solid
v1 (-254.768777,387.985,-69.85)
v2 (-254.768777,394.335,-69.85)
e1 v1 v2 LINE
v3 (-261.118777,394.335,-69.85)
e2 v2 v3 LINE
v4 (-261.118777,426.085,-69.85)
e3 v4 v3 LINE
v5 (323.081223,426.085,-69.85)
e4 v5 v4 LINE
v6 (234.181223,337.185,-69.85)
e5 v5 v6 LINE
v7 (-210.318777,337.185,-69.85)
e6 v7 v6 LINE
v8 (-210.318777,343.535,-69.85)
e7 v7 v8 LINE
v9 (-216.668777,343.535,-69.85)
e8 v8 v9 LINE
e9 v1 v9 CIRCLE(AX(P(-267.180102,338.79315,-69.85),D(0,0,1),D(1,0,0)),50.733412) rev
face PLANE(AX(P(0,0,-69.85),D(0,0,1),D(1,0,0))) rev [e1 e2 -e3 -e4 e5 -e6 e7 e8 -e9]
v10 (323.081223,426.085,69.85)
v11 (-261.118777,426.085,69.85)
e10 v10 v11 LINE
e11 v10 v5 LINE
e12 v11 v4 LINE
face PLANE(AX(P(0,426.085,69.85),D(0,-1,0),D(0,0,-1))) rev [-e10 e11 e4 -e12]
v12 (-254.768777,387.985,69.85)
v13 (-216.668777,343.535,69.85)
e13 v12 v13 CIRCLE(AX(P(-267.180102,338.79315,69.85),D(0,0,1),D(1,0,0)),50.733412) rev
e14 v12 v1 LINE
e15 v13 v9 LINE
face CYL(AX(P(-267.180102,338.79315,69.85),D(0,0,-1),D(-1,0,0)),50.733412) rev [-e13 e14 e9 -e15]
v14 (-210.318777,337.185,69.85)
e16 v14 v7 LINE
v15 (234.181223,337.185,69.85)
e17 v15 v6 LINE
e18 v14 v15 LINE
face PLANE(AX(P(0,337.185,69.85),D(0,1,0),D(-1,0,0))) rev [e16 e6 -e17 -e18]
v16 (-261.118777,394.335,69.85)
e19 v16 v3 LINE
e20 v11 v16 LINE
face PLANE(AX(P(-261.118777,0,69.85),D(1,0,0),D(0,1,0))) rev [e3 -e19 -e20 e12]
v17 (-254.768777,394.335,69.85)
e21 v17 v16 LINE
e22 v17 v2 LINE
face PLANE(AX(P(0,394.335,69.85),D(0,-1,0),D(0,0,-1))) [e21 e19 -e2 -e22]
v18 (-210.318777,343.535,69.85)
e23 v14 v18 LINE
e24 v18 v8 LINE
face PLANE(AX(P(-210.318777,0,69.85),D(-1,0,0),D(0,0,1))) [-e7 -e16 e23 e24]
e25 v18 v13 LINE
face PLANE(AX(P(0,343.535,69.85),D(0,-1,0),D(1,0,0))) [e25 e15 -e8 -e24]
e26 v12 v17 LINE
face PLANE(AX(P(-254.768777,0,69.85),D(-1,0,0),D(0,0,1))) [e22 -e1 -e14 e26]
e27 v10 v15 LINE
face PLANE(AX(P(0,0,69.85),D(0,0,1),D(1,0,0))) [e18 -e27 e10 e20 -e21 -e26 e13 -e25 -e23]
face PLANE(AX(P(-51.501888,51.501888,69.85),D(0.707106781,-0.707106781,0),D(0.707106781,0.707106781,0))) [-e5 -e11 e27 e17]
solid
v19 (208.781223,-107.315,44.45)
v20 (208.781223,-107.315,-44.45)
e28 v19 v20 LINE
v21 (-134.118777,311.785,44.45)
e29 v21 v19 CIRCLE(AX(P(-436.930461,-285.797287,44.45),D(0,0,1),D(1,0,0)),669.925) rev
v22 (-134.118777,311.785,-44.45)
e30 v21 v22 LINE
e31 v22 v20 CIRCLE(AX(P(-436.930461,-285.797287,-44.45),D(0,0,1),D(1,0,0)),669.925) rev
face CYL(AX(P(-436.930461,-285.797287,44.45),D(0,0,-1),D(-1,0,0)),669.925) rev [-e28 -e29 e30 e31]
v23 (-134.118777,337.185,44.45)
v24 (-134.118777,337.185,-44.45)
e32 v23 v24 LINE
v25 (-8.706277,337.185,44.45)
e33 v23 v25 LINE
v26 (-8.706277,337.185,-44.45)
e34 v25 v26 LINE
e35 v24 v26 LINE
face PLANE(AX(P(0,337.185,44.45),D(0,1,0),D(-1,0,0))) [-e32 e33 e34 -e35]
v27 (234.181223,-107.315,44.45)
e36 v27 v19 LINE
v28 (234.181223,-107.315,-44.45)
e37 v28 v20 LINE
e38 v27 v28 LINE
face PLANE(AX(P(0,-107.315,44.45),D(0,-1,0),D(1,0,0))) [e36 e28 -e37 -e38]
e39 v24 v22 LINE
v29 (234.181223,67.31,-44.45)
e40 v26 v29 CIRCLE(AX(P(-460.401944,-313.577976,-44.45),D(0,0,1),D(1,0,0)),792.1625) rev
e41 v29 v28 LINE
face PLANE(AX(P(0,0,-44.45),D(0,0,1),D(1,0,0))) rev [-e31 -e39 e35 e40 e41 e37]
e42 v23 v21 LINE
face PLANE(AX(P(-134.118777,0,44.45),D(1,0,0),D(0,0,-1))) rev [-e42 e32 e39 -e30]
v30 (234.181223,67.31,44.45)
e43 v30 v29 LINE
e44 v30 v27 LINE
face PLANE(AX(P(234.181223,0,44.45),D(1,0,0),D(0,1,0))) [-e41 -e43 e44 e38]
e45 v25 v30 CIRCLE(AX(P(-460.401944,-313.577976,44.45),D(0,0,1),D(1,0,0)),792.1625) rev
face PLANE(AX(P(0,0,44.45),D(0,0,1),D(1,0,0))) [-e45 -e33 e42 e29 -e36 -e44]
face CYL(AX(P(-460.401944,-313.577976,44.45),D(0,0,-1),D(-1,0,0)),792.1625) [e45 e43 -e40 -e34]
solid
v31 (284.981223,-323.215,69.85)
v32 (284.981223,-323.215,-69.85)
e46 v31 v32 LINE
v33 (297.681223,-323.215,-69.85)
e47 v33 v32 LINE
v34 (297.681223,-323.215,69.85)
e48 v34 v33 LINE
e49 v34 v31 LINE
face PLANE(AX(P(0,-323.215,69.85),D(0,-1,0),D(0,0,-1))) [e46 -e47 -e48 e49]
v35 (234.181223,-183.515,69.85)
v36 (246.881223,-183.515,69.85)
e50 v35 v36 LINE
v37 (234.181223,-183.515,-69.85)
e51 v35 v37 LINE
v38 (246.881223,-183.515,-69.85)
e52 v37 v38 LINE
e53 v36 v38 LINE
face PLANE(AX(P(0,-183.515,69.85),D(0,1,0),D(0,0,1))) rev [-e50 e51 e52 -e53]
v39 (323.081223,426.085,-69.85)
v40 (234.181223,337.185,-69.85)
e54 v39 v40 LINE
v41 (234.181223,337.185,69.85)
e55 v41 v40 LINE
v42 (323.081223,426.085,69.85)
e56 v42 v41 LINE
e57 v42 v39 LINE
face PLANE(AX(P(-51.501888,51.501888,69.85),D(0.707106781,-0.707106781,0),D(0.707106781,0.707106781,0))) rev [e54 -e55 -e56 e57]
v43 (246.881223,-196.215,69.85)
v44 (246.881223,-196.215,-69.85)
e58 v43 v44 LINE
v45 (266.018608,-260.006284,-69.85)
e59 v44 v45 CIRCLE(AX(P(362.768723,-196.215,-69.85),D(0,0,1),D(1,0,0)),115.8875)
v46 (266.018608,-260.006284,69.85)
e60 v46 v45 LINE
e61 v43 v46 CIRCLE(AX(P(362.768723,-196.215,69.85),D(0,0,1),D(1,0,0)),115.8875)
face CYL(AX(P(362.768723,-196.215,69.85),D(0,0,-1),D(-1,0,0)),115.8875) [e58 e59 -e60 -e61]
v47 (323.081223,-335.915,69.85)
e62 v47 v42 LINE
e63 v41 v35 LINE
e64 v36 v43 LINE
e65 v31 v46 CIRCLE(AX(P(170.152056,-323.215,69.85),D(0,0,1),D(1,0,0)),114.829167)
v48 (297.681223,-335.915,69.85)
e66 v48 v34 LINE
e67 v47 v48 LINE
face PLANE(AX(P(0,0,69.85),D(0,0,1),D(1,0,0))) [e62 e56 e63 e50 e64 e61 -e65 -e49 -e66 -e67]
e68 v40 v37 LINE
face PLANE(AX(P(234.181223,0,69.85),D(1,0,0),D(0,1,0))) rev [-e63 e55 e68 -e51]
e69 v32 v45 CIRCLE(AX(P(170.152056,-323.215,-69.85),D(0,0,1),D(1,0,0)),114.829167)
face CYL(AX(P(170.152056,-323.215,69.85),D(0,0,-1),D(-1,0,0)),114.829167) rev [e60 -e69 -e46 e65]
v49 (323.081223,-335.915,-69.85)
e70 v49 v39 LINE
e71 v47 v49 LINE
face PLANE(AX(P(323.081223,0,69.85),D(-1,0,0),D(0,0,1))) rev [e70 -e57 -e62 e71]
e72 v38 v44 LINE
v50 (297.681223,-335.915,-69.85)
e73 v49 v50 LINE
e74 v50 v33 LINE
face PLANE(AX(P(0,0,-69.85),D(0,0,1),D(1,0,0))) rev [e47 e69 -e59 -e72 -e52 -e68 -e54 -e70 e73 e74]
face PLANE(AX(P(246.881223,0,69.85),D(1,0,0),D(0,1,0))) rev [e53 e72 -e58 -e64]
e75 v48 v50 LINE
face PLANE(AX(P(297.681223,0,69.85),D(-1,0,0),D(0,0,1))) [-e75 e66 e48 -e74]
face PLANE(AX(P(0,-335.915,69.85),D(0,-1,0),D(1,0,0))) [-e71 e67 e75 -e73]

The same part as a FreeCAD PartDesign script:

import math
import FreeCAD as App
import Part
import Sketcher
Q = App.Units.Quantity

doc = App.newDocument("Part")
body = doc.addObject("PartDesign::Body", "Body")

sketch1 = body.newObject("Sketcher::SketchObject", "Sketch")
sketch1.AttachmentSupport = (doc.getObject("XY_Plane"), [""])
sketch1.MapMode = "FlatFace"
sketch1.addGeometry([
    Part.LineSegment(App.Vector(-255, 394, 0), App.Vector(-255, 388, 0)),
    Part.ArcOfCircle(Part.Circle(App.Vector(-267, 339, 0), App.Vector(0, 0, 1), 51), math.radians(5), math.radians(76)),
    Part.LineSegment(App.Vector(-217, 344, 0), App.Vector(-210, 344, 0)),
    Part.LineSegment(App.Vector(-210, 344, 0), App.Vector(-210, 337, 0)),
    Part.LineSegment(App.Vector(-210, 337, 0), App.Vector(234, 337, 0)),
    Part.LineSegment(App.Vector(234, 337, 0), App.Vector(323, 426, 0)),
    Part.LineSegment(App.Vector(323, 426, 0), App.Vector(-261, 426, 0)),
    Part.LineSegment(App.Vector(-261, 426, 0), App.Vector(-261, 394, 0)),
    Part.LineSegment(App.Vector(-261, 394, 0), App.Vector(-255, 394, 0)),
], False)
sketch1.addConstraint([
    Sketcher.Constraint("Coincident", 0, 2, 1, 2),
    Sketcher.Constraint("Coincident", 1, 1, 2, 1),
    Sketcher.Constraint("Coincident", 2, 2, 3, 1),
    Sketcher.Constraint("Coincident", 3, 2, 4, 1),
    Sketcher.Constraint("Coincident", 4, 2, 5, 1),
    Sketcher.Constraint("Coincident", 5, 2, 6, 1),
    Sketcher.Constraint("Coincident", 6, 2, 7, 1),
    Sketcher.Constraint("Coincident", 7, 2, 8, 1),
    Sketcher.Constraint("Coincident", 8, 2, 0, 1),
    Sketcher.Constraint("Vertical", 0),
    Sketcher.Constraint("Horizontal", 2),
    Sketcher.Constraint("Vertical", 3),
    Sketcher.Constraint("Horizontal", 4),
    Sketcher.Constraint("Horizontal", 6),
    Sketcher.Constraint("Vertical", 7),
    Sketcher.Constraint("Horizontal", 8),
    Sketcher.Constraint("Equal", 2, 8),
    Sketcher.Constraint("Equal", 8, 0),
    Sketcher.Constraint("Equal", 0, 3),
    Sketcher.Constraint("DistanceX", 6, 2, 6, 1, Q("23 in")),
    Sketcher.Constraint("DistanceX", 4, 1, 4, 2, Q("17.5 in")),
    Sketcher.Constraint("Angle", 5, Q("45 deg")),
    Sketcher.Constraint("DistanceY", 3, 2, 0, 2, Q("2 in")),
    Sketcher.Constraint("DistanceX", 2, 2, 5, 2, Q("21 in")),
    Sketcher.Constraint("DistanceX", 2, 1, 2, 2, Q("0.25 in")),
    Sketcher.Constraint("DistanceY", -1, 1, 0, 2, Q("15.275 in")),
    Sketcher.Constraint("Radius", 1, 50.733412),
    Sketcher.Constraint("DistanceX", 1, 3, -1, 1, 267.180102),
])
pad1 = body.newObject("PartDesign::Pad", "Pad")
pad1.Profile = sketch1
pad1.Length = Q("5.5 in")
pad1.Midplane = True
body2 = doc.addObject("PartDesign::Body", "Body001")

sketch2 = body2.newObject("Sketcher::SketchObject", "Sketch001")
sketch2.AttachmentSupport = (doc.getObject("XY_Plane001"), [""])
sketch2.MapMode = "FlatFace"
sketch2.addGeometry([
    Part.ArcOfCircle(Part.Circle(App.Vector(-460, -314, 0), App.Vector(0, 0, 1), 792), math.radians(29), math.radians(55)),
    Part.LineSegment(App.Vector(-9, 337, 0), App.Vector(-134, 337, 0)),
    Part.LineSegment(App.Vector(-134, 337, 0), App.Vector(-134, 312, 0)),
    Part.ArcOfCircle(Part.Circle(App.Vector(-437, -286, 0), App.Vector(0, 0, 1), 670), math.radians(15), math.radians(63)),
    Part.LineSegment(App.Vector(209, -107, 0), App.Vector(234, -107, 0)),
    Part.LineSegment(App.Vector(234, -107, 0), App.Vector(234, 67, 0)),
], False)
sketch2.addConstraint([
    Sketcher.Constraint("Coincident", 0, 2, 1, 1),
    Sketcher.Constraint("Coincident", 1, 2, 2, 1),
    Sketcher.Constraint("Coincident", 2, 2, 3, 2),
    Sketcher.Constraint("Coincident", 3, 1, 4, 1),
    Sketcher.Constraint("Coincident", 4, 2, 5, 1),
    Sketcher.Constraint("Coincident", 5, 2, 0, 1),
    Sketcher.Constraint("Horizontal", 1),
    Sketcher.Constraint("Vertical", 2),
    Sketcher.Constraint("Horizontal", 4),
    Sketcher.Constraint("Vertical", 5),
    Sketcher.Constraint("Equal", 4, 2),
    Sketcher.Constraint("DistanceX", 4, 1, 4, 2, Q("1 in")),
    Sketcher.Constraint("Radius", 0, Q("31.1875 in")),
    Sketcher.Constraint("Radius", 3, Q("26.375 in")),
    Sketcher.Constraint("DistanceX", 2, 2, 3, 1, Q("13.5 in")),
    Sketcher.Constraint("DistanceY", 4, 2, 2, 2, Q("16.5 in")),
    Sketcher.Constraint("DistanceX", 1, 2, 1, 1, Q("4.9375 in")),
    Sketcher.Constraint("DistanceY", 5, 1, 5, 2, Q("6.875 in")),
    Sketcher.Constraint("DistanceY", -1, 1, 5, 2, Q("2.65 in")),
    Sketcher.Constraint("DistanceX", 3, 3, -1, 1, 436.930461),
])
pad2 = body2.newObject("PartDesign::Pad", "Pad001")
pad2.Profile = sketch2
pad2.Length = Q("3.5 in")
pad2.Midplane = True
body3 = doc.addObject("PartDesign::Body", "Body002")

sketch3 = body3.newObject("Sketcher::SketchObject", "Sketch002")
sketch3.AttachmentSupport = (doc.getObject("XY_Plane002"), [""])
sketch3.MapMode = "FlatFace"
sketch3.addGeometry([
    Part.LineSegment(App.Vector(323, -336, 0), App.Vector(323, 426, 0)),
    Part.LineSegment(App.Vector(323, 426, 0), App.Vector(234, 337, 0)),
    Part.LineSegment(App.Vector(234, 337, 0), App.Vector(234, -184, 0)),
    Part.LineSegment(App.Vector(234, -184, 0), App.Vector(247, -184, 0)),
    Part.LineSegment(App.Vector(247, -184, 0), App.Vector(247, -196, 0)),
    Part.ArcOfCircle(Part.Circle(App.Vector(363, -196, 0), App.Vector(0, 0, 1), 116), math.radians(180), math.radians(213)),
    Part.ArcOfCircle(Part.Circle(App.Vector(170, -323, 0), App.Vector(0, 0, 1), 115), math.radians(0), math.radians(33)),
    Part.LineSegment(App.Vector(285, -323, 0), App.Vector(298, -323, 0)),
    Part.LineSegment(App.Vector(298, -323, 0), App.Vector(298, -336, 0)),
    Part.LineSegment(App.Vector(298, -336, 0), App.Vector(323, -336, 0)),
], False)
sketch3.addConstraint([
    Sketcher.Constraint("Coincident", 0, 2, 1, 1),
    Sketcher.Constraint("Coincident", 1, 2, 2, 1),
    Sketcher.Constraint("Coincident", 2, 2, 3, 1),
    Sketcher.Constraint("Coincident", 3, 2, 4, 1),
    Sketcher.Constraint("Tangent", 4, 2, 5, 1),
    Sketcher.Constraint("Tangent", 5, 2, 6, 2),
    Sketcher.Constraint("Coincident", 6, 1, 7, 1),
    Sketcher.Constraint("Coincident", 7, 2, 8, 1),
    Sketcher.Constraint("Coincident", 8, 2, 9, 1),
    Sketcher.Constraint("Coincident", 9, 2, 0, 1),
    Sketcher.Constraint("Vertical", 0),
    Sketcher.Constraint("Vertical", 2),
    Sketcher.Constraint("Horizontal", 3),
    Sketcher.Constraint("Vertical", 4),
    Sketcher.Constraint("Horizontal", 7),
    Sketcher.Constraint("Vertical", 8),
    Sketcher.Constraint("Horizontal", 9),
    Sketcher.Constraint("Equal", 3, 7),
    Sketcher.Constraint("Equal", 7, 4),
    Sketcher.Constraint("Equal", 4, 8),
    Sketcher.Constraint("DistanceX", 9, 1, 9, 2, Q("1 in")),
    Sketcher.Constraint("DistanceY", 0, 1, 0, 2, Q("30 in")),
    Sketcher.Constraint("DistanceX", 3, 1, 3, 2, Q("0.5 in")),
    Sketcher.Constraint("DistanceY", 2, 2, 2, 1, Q("20.5 in")),
    Sketcher.Constraint("Angle", 1, Q("-135 deg")),
    Sketcher.Constraint("Radius", 5, Q("4.5625 in")),
    Sketcher.Constraint("DistanceY", 6, 3, 5, 3, Q("5 in")),
    Sketcher.Constraint("DistanceY", 2, 2, 0, 2, Q("24 in")),
    Sketcher.Constraint("DistanceY", 5, 3, -1, 1, Q("7.725 in")),
    Sketcher.Constraint("DistanceX", -1, 1, 6, 3, Q("6.6988999 in")),
])
pad3 = body3.newObject("PartDesign::Pad", "Pad002")
pad3.Profile = sketch3
pad3.Length = Q("5.5 in")
pad3.Midplane = True

doc.recompute()
